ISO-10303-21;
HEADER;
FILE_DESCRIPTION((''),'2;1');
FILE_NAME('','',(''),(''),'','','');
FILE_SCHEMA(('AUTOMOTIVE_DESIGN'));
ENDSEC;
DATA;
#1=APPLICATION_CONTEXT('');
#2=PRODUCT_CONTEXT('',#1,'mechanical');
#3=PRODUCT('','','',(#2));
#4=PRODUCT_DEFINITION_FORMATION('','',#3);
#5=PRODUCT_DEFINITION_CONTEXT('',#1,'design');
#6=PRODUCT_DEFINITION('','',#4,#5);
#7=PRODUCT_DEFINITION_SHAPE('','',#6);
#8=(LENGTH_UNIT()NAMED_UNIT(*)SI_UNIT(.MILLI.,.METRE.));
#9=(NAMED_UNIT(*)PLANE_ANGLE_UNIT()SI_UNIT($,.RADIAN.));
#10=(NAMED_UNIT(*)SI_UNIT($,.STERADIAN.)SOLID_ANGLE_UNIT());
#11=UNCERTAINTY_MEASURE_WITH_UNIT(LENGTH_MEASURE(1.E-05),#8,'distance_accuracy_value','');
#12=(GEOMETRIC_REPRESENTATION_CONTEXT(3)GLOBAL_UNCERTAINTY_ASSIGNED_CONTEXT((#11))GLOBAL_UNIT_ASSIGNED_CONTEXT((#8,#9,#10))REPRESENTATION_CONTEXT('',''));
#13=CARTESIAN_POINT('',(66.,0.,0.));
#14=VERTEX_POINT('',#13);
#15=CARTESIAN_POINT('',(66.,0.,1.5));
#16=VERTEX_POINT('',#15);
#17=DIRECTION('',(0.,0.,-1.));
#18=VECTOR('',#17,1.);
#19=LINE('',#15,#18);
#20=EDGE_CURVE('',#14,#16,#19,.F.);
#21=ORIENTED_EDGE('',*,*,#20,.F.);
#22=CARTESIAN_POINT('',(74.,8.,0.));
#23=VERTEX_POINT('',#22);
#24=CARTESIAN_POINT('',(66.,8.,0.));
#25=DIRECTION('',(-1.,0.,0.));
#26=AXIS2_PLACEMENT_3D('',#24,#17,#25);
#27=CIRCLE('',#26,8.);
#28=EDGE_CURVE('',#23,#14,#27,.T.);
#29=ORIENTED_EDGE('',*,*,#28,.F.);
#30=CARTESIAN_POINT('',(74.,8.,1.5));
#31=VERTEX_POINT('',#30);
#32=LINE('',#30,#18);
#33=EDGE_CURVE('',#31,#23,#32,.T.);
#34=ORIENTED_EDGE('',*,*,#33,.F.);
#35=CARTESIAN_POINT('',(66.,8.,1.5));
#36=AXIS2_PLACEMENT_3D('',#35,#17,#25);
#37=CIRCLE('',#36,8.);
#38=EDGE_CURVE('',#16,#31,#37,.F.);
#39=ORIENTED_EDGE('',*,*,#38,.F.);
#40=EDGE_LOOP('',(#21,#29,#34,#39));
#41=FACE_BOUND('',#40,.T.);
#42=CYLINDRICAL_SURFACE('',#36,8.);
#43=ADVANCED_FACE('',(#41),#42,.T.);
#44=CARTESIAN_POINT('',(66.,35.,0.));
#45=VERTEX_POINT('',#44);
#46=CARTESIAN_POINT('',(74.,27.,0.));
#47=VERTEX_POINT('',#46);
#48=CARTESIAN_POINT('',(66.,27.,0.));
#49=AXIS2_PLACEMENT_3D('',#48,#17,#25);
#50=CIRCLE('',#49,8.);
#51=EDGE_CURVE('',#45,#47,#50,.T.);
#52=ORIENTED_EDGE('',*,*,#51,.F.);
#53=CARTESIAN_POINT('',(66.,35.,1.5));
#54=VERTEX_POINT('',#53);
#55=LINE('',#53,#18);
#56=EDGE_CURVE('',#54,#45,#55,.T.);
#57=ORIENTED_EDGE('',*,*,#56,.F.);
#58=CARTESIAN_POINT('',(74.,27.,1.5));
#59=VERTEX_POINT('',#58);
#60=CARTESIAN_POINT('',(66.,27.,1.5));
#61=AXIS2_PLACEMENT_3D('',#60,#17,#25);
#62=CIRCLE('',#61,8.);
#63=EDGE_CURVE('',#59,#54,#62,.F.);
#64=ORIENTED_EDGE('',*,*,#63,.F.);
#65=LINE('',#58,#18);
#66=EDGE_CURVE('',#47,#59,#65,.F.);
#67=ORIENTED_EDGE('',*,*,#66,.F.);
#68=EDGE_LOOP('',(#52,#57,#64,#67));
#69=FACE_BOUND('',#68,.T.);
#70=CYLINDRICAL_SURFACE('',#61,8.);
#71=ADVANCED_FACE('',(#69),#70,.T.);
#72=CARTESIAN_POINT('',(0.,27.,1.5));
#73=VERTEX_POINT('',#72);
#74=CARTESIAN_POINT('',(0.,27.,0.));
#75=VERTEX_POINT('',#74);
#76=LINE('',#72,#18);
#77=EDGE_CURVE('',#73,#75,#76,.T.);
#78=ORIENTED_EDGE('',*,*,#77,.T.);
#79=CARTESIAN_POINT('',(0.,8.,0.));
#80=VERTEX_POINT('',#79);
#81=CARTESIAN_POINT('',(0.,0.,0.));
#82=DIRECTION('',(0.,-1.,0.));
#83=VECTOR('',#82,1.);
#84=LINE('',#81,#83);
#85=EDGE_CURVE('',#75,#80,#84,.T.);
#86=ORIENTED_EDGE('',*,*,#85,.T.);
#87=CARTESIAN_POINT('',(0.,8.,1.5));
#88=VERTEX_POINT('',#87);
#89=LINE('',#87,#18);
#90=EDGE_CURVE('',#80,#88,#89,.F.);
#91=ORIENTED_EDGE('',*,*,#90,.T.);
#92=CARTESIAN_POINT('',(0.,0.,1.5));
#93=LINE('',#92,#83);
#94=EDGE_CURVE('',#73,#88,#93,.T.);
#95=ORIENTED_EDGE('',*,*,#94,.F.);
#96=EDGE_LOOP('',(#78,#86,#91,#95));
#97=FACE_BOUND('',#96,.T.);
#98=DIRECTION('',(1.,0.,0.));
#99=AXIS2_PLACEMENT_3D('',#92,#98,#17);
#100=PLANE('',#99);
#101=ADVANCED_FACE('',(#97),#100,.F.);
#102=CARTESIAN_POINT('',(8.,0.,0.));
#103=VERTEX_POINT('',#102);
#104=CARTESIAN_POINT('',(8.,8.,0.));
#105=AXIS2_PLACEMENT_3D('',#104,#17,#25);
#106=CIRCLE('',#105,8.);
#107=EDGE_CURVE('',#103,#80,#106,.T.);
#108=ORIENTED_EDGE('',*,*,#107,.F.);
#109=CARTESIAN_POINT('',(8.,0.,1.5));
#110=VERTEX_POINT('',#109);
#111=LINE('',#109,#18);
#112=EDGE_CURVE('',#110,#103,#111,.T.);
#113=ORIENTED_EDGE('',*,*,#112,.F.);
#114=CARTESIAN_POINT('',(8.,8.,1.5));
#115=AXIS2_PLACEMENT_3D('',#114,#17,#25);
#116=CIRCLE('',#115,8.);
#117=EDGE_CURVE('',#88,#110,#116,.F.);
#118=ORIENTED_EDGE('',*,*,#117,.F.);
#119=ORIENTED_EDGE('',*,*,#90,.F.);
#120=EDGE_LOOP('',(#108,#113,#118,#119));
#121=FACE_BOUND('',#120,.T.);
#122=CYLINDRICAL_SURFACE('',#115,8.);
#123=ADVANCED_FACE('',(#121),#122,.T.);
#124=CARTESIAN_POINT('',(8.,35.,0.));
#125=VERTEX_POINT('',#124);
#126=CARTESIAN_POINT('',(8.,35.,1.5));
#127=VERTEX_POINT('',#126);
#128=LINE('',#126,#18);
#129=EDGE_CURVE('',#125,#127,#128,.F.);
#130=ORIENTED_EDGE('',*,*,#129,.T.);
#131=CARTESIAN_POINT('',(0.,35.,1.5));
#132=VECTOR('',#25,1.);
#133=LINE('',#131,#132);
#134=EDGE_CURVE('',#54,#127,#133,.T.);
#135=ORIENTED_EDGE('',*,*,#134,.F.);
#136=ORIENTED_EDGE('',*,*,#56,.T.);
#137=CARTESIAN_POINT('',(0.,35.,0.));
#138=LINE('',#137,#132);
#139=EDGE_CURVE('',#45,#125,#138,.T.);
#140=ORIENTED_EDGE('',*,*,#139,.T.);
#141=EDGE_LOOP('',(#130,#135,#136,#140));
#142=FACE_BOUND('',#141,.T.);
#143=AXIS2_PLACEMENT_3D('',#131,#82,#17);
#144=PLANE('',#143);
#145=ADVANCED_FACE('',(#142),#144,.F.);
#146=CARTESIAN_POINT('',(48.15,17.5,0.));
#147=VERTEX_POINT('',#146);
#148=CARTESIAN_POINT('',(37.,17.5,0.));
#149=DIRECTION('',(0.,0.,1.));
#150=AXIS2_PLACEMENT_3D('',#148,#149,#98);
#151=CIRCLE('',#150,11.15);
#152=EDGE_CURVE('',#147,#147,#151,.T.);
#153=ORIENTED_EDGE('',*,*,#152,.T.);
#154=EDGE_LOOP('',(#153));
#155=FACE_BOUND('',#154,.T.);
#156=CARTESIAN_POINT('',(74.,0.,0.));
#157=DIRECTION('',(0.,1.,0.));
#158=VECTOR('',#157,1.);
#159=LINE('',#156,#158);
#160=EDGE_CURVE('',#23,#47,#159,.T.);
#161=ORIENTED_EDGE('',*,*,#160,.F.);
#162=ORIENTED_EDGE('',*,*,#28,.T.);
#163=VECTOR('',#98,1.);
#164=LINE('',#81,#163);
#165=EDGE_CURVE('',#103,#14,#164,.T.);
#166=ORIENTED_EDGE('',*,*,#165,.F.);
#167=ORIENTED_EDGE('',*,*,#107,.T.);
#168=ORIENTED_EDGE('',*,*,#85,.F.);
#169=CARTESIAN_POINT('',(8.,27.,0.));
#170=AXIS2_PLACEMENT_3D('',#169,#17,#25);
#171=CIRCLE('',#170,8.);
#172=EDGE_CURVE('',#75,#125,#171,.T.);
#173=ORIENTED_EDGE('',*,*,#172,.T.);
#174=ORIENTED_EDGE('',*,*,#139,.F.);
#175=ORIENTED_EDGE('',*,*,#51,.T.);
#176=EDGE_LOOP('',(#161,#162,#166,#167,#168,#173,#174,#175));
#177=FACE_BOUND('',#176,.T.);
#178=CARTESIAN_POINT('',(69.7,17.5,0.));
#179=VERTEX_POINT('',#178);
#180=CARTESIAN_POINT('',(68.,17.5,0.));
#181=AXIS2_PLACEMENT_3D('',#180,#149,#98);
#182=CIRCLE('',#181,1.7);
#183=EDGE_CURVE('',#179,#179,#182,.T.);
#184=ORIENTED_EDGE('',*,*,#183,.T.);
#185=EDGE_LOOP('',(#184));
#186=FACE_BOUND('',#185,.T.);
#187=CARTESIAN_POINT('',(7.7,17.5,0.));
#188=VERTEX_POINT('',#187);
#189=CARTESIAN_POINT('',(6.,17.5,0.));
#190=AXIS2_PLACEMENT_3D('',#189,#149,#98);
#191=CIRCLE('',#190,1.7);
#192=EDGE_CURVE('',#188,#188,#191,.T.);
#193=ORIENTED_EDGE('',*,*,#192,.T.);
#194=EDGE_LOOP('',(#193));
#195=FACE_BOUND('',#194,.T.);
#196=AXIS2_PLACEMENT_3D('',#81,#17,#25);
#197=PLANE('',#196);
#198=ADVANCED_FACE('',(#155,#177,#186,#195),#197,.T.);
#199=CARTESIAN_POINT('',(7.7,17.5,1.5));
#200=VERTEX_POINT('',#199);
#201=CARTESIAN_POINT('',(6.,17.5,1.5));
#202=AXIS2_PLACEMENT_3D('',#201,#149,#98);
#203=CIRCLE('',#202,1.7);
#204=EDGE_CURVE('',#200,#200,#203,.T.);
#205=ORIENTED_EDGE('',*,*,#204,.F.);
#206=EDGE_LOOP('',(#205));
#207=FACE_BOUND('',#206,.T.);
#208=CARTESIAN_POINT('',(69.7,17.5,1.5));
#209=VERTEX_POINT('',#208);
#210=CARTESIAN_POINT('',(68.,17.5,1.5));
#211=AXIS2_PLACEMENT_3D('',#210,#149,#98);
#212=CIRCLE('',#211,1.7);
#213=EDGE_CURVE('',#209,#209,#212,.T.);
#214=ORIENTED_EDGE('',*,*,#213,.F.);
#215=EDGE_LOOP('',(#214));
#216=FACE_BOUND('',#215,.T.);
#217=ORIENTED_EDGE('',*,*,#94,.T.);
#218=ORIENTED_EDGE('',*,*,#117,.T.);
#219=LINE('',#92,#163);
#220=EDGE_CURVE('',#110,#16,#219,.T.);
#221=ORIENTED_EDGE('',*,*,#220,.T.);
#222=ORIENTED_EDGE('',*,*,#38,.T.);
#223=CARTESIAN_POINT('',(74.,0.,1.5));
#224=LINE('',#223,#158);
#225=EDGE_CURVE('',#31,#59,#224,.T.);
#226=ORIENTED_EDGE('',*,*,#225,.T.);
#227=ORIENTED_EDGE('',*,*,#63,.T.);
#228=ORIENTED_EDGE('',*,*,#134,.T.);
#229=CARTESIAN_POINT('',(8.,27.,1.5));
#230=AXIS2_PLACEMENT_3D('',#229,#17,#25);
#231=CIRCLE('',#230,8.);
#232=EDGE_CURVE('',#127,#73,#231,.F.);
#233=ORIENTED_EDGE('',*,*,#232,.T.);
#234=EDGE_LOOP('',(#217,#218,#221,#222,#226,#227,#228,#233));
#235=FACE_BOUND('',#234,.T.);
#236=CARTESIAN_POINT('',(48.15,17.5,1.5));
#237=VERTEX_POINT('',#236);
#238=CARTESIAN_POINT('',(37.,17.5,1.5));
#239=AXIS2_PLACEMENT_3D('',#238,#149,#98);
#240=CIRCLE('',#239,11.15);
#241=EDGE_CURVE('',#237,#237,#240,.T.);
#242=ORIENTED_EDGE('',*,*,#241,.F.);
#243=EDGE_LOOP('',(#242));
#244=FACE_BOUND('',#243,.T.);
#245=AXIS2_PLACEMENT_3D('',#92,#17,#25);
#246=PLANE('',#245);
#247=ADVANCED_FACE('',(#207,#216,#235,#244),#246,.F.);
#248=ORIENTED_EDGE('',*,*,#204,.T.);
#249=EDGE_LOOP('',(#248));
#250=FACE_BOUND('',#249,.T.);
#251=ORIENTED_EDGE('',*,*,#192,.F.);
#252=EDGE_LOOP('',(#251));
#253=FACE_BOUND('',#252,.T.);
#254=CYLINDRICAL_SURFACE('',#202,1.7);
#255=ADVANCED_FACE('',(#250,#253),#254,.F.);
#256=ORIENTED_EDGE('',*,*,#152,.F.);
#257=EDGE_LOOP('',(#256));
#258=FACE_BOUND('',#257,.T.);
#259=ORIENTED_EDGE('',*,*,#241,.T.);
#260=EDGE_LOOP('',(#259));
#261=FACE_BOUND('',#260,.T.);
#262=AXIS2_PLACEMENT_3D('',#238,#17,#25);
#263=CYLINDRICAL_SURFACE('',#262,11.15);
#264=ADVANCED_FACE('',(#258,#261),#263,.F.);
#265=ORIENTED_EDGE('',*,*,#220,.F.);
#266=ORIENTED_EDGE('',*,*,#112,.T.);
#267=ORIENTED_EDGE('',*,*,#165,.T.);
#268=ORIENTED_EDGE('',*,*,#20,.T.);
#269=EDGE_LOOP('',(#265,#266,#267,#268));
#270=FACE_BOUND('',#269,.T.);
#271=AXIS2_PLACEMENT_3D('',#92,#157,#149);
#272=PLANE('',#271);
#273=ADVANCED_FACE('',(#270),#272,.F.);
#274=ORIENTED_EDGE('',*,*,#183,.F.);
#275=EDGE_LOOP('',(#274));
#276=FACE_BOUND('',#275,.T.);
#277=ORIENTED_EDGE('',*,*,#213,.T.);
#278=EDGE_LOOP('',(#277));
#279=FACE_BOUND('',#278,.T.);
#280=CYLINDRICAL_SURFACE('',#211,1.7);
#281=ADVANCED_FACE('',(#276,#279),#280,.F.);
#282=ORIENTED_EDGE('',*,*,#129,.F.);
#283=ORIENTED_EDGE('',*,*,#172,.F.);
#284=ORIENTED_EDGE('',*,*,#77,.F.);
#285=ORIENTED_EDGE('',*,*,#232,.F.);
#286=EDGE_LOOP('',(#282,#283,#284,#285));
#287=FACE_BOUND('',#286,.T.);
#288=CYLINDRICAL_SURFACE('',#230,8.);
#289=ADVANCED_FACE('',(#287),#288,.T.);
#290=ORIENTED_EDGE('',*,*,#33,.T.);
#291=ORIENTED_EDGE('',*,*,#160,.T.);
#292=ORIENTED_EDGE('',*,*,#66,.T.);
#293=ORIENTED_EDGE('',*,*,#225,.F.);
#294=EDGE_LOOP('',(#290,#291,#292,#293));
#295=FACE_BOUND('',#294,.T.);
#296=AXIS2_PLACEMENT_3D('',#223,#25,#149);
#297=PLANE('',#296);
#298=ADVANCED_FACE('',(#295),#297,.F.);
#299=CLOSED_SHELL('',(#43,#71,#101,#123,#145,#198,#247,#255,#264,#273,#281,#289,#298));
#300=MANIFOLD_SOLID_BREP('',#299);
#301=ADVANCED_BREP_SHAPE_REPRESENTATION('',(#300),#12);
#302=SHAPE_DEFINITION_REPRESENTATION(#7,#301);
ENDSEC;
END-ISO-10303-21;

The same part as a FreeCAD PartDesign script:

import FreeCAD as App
import Part
import Sketcher
from FreeCAD import Vector
Q = App.Units.Quantity


def edges_at(feature, points):
    """Names of the edges that pass closest to the given points."""
    edges = feature.Shape.Edges
    near = lambda p: min(range(len(edges)), key=lambda i: edges[i].distToShape(Part.Vertex(*p))[0])
    return sorted({f"Edge{near(p) + 1}" for p in points})

doc = App.newDocument("Part")
body = doc.addObject("PartDesign::Body", "Body")

# Sketch on XY plane
sketch1 = body.newObject("Sketcher::SketchObject", "Sketch")
sketch1.AttachmentSupport = (doc.getObject("XY_Plane"), [""])
sketch1.MapMode = "FlatFace"
sketch1.addGeometry([
    Part.LineSegment(Vector(0, 35, 0), Vector(0, 0, 0)),  # 0
    Part.LineSegment(Vector(0, 0, 0), Vector(74, 0, 0)),  # 1
    Part.LineSegment(Vector(74, 0, 0), Vector(74, 35, 0)),  # 2
    Part.LineSegment(Vector(74, 35, 0), Vector(0, 35, 0)),  # 3
    Part.Circle(Vector(6, 17.5, 0), Vector(0, 0, 1), 1.5),  # 4
    Part.Circle(Vector(37, 17.5, 0), Vector(0, 0, 1), 11.2),  # 5
    Part.Circle(Vector(68, 17.5, 0), Vector(0, 0, 1), 1.5),  # 6
], False)
sketch1.addConstraint([
    Sketcher.Constraint("Coincident", 0, 2, 1, 1),
    Sketcher.Constraint("Coincident", 1, 2, 2, 1),
    Sketcher.Constraint("Coincident", 2, 2, 3, 1),
    Sketcher.Constraint("Coincident", 3, 2, 0, 1),
    Sketcher.Constraint("Vertical", 0),
    Sketcher.Constraint("Horizontal", 1),
    Sketcher.Constraint("Vertical", 2),
    Sketcher.Constraint("Horizontal", 3),
    Sketcher.Constraint("Coincident", 0, 2, -1, 1),
    Sketcher.Constraint("Equal", 4, 6),
    Sketcher.Constraint("Horizontal", 4, 3, 5, 3),
    Sketcher.Constraint("Horizontal", 5, 3, 6, 3),
    Sketcher.Constraint("Diameter", 4, Q("3 mm")),
    Sketcher.Constraint("Diameter", 5, Q("22.3 mm")),
    Sketcher.Constraint("DistanceX", 1, 1, 1, 2, Q("74 mm")),
    Sketcher.Constraint("DistanceY", 0, 2, 0, 1, Q("35 mm")),
    Sketcher.Constraint("DistanceX", -1, 1, 4, 3, Q("6 mm")),
    Sketcher.Constraint("DistanceX", -1, 1, 5, 3, Q("37 mm")),
    Sketcher.Constraint("DistanceX", -1, 1, 6, 3, Q("68 mm")),
    Sketcher.Constraint("DistanceY", -1, 1, 4, 3, Q("17.5 mm")),
])
pad1 = body.newObject("PartDesign::Pad", "Pad")
pad1.Profile = sketch1
pad1.Length = 1.5

# Sketch on XY plane
sketch2 = body.newObject("Sketcher::SketchObject", "Sketch001")
sketch2.AttachmentSupport = (doc.getObject("XY_Plane"), [""])
sketch2.MapMode = "FlatFace"
sketch2.AttachmentOffset = App.Placement(Vector(0, 0, 1.5), App.Rotation())
sketch2.addGeometry([
    Part.Circle(Vector(6, 17.5, 0), Vector(0, 0, 1), 1.7),
    Part.Circle(Vector(68, 17.5, 0), Vector(0, 0, 1), 1.7),
], False)
sketch2.addConstraint([
    Sketcher.Constraint("Equal", 0, 1),
    Sketcher.Constraint("Horizontal", 0, 3, 1, 3),
    Sketcher.Constraint("Diameter", 0, Q("3.4 mm")),
    Sketcher.Constraint("DistanceX", -1, 1, 0, 3, Q("6 mm")),
    Sketcher.Constraint("DistanceX", -1, 1, 1, 3, Q("68 mm")),
    Sketcher.Constraint("DistanceY", -1, 1, 0, 3, Q("17.5 mm")),
])
doc.recompute()
hole = body.newObject("PartDesign::Hole", "Hole")
hole.Profile = sketch2
hole.ThreadType = "None"
hole.Diameter = 3.4
hole.DepthType = "Dimension"
hole.Depth = 1.5
hole.DrillPoint = "Flat"
doc.recompute()

fillet = body.newObject("PartDesign::Fillet", "Fillet")
fillet.Base = (hole, edges_at(hole, [
    (0, 35, 0.75),
    (74, 35, 0.75),
    (74, 0, 0.75),
    (0, 0, 0.75),
]))
fillet.Radius = 8

doc.recompute()
